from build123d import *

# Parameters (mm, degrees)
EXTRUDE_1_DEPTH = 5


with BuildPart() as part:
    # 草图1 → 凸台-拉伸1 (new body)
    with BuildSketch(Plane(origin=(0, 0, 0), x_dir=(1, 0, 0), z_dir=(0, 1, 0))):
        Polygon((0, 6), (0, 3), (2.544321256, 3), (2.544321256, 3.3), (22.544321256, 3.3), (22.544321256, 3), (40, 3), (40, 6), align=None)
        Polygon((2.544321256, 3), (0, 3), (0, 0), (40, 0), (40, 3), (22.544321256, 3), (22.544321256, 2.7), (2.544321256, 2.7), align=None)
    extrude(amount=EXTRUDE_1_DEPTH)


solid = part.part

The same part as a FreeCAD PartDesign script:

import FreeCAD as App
import Part
import Sketcher
from FreeCAD import Vector
Q = App.Units.Quantity


def add_polygon(sketch, points):
    """Adds a closed chain of lines whose ends are joined by coincident constraints."""
    first, n = sketch.GeometryCount, len(points)
    for a, b in zip(points, points[1:] + points[:1]):
        sketch.addGeometry(Part.LineSegment(App.Vector(*a, 0), App.Vector(*b, 0)), False)
    for i in range(n):
        sketch.addConstraint(Sketcher.Constraint("Coincident", first + i, 2, first + (i + 1) % n, 1))

doc = App.newDocument("Part")
body = doc.addObject("PartDesign::Body", "Body")

# Sketch on XZ plane
sketch1 = doc.addObject("Sketcher::SketchObject", "Sketch")
body.addObject(sketch1)
sketch1.AttachmentSupport = (doc.XZ_Plane, [""])
sketch1.MapMode = "FlatFace"
add_polygon(sketch1, [(0, -6), (0, 0), (40, 0), (40, -6)])  # lines 0-3
add_polygon(sketch1, [(2.544321, -3.3), (22.544321, -3.3), (22.544321, -2.7), (2.544321, -2.7)])  # lines 4-7
sketch1.addConstraint(Sketcher.Constraint("Vertical", 0))
sketch1.addConstraint(Sketcher.Constraint("Horizontal", 1))
sketch1.addConstraint(Sketcher.Constraint("Vertical", 2))
sketch1.addConstraint(Sketcher.Constraint("Horizontal", 3))
sketch1.addConstraint(Sketcher.Constraint("Horizontal", 4))
sketch1.addConstraint(Sketcher.Constraint("Vertical", 5))
sketch1.addConstraint(Sketcher.Constraint("Horizontal", 6))
sketch1.addConstraint(Sketcher.Constraint("Vertical", 7))
sketch1.addConstraint(Sketcher.Constraint("Coincident", 0, 2, -1, 1))
sketch1.addConstraint(Sketcher.Constraint("DistanceX", 1, 1, 1, 2, Q("40 mm")))
sketch1.addConstraint(Sketcher.Constraint("DistanceX", 4, 1, 4, 2, Q("20 mm")))
sketch1.addConstraint(Sketcher.Constraint("DistanceY", 0, 1, 0, 2, Q("6 mm")))
sketch1.addConstraint(Sketcher.Constraint("DistanceY", 5, 1, 5, 2, Q("0.6 mm")))
sketch1.addConstraint(Sketcher.Constraint("DistanceY", 4, 2, -1, 1, Q("3.3 mm")))
sketch1.addConstraint(Sketcher.Constraint("DistanceX", -1, 1, 4, 2, Q("22.544321 mm")))
pad1 = doc.addObject("PartDesign::Pad", "Pad")
body.addObject(pad1)
pad1.Profile = sketch1
pad1.Length = 5
pad1.Reversed = True

doc.recompute()
